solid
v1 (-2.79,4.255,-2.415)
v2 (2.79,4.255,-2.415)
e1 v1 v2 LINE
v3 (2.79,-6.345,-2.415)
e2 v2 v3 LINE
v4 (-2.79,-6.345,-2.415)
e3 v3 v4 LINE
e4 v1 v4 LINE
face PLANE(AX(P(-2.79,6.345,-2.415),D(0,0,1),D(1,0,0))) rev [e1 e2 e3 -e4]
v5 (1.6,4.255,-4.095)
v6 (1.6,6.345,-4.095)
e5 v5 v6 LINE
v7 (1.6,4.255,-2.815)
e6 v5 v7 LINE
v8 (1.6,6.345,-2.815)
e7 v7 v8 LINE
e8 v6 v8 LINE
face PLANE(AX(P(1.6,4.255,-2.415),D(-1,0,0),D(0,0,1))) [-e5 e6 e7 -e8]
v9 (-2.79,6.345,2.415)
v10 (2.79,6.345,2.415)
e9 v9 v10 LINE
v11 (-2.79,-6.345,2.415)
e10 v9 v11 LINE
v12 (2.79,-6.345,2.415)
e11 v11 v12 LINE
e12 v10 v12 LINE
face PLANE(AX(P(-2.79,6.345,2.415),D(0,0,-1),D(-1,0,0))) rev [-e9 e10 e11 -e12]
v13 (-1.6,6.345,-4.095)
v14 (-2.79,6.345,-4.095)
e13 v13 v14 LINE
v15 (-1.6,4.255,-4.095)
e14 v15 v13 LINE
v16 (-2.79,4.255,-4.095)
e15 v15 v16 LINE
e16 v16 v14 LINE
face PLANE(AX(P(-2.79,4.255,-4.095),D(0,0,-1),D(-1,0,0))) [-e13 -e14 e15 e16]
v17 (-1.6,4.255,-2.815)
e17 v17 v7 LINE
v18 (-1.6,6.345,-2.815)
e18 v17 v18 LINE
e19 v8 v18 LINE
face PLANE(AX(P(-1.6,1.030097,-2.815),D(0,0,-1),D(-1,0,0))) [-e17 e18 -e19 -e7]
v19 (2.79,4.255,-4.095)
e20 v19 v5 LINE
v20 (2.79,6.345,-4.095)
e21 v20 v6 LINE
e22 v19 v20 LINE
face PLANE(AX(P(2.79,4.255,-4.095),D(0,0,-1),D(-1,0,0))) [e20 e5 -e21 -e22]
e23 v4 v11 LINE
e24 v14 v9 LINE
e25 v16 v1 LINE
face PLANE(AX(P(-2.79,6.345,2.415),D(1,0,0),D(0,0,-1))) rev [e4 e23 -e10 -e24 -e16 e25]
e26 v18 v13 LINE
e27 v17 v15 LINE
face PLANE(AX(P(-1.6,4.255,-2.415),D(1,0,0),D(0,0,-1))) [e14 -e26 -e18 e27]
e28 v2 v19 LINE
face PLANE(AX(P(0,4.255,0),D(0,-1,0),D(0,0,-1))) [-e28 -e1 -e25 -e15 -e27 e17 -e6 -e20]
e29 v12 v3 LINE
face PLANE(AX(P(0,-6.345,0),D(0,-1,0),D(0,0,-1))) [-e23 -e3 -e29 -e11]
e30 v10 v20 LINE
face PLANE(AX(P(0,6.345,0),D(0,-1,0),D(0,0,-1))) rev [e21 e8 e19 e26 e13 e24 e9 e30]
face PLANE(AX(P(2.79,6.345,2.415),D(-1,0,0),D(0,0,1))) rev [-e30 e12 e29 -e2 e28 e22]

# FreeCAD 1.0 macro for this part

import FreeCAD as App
import Part
import Sketcher

V = App.Vector

doc = App.newDocument("Part")
body = doc.addObject("PartDesign::Body", "Body")

# Sketch on XZ plane
sketch1 = doc.addObject("Sketcher::SketchObject", "Sketch")
body.addObject(sketch1)
sketch1.AttachmentSupport = (doc.XZ_Plane, [""])
sketch1.MapMode = "FlatFace"
sketch1.addGeometry(Part.LineSegment(V(-2.8, -2.4, 0), V(-2.8, 2.4, 0)), False)
sketch1.addGeometry(Part.LineSegment(V(-2.8, 2.4, 0), V(2.8, 2.4, 0)), False)
sketch1.addGeometry(Part.LineSegment(V(2.8, 2.4, 0), V(2.8, -2.4, 0)), False)
sketch1.addGeometry(Part.LineSegment(V(2.8, -2.4, 0), V(-2.8, -2.4, 0)), False)
sketch1.addConstraint(Sketcher.Constraint("Coincident", 0, 2, 1, 1))
sketch1.addConstraint(Sketcher.Constraint("Coincident", 1, 2, 2, 1))
sketch1.addConstraint(Sketcher.Constraint("Coincident", 2, 2, 3, 1))
sketch1.addConstraint(Sketcher.Constraint("Coincident", 3, 2, 0, 1))
sketch1.addConstraint(Sketcher.Constraint("Vertical", 0))
sketch1.addConstraint(Sketcher.Constraint("Horizontal", 1))
sketch1.addConstraint(Sketcher.Constraint("Vertical", 2))
sketch1.addConstraint(Sketcher.Constraint("Horizontal", 3))
sketch1.addConstraint(Sketcher.Constraint("Symmetric", 0, 2, 2, 2, -1, 1))
sketch1.addConstraint(Sketcher.Constraint("DistanceX", 1, 1, 1, 2, 5.58))
sketch1.addConstraint(Sketcher.Constraint("DistanceY", 0, 1, 0, 2, 4.83))
pad1 = doc.addObject("PartDesign::Pad", "Pad")
body.addObject(pad1)
pad1.Profile = sketch1
pad1.Length = 12.69
pad1.Midplane = True

# Sketch on XZ plane
sketch2 = doc.addObject("Sketcher::SketchObject", "Sketch001")
body.addObject(sketch2)
sketch2.AttachmentSupport = (doc.XZ_Plane, [""])
sketch2.MapMode = "FlatFace"
sketch2.AttachmentOffset = App.Placement(V(0, 0, -6.345), App.Rotation())
sketch2.addGeometry(Part.LineSegment(V(-2.8, -4.1, 0), V(-2.8, -2.4, 0)), False)
sketch2.addGeometry(Part.LineSegment(V(-2.8, -2.4, 0), V(-1.6, -2.4, 0)), False)
sketch2.addGeometry(Part.LineSegment(V(-1.6, -2.4, 0), V(-1.6, -4.1, 0)), False)
sketch2.addGeometry(Part.LineSegment(V(-1.6, -4.1, 0), V(-2.8, -4.1, 0)), False)
sketch2.addGeometry(Part.LineSegment(V(1.6, -4.1, 0), V(1.6, -2.4, 0)), False)
sketch2.addGeometry(Part.LineSegment(V(1.6, -2.4, 0), V(2.8, -2.4, 0)), False)
sketch2.addGeometry(Part.LineSegment(V(2.8, -2.4, 0), V(2.8, -4.1, 0)), False)
sketch2.addGeometry(Part.LineSegment(V(2.8, -4.1, 0), V(1.6, -4.1, 0)), False)
sketch2.addConstraint(Sketcher.Constraint("Coincident", 0, 2, 1, 1))
sketch2.addConstraint(Sketcher.Constraint("Coincident", 1, 2, 2, 1))
sketch2.addConstraint(Sketcher.Constraint("Coincident", 2, 2, 3, 1))
sketch2.addConstraint(Sketcher.Constraint("Coincident", 3, 2, 0, 1))
sketch2.addConstraint(Sketcher.Constraint("Coincident", 4, 2, 5, 1))
sketch2.addConstraint(Sketcher.Constraint("Coincident", 5, 2, 6, 1))
sketch2.addConstraint(Sketcher.Constraint("Coincident", 6, 2, 7, 1))
sketch2.addConstraint(Sketcher.Constraint("Coincident", 7, 2, 4, 1))
sketch2.addConstraint(Sketcher.Constraint("Vertical", 0))
sketch2.addConstraint(Sketcher.Constraint("Horizontal", 1))
sketch2.addConstraint(Sketcher.Constraint("Vertical", 2))
sketch2.addConstraint(Sketcher.Constraint("Horizontal", 3))
sketch2.addConstraint(Sketcher.Constraint("Vertical", 4))
sketch2.addConstraint(Sketcher.Constraint("Horizontal", 5))
sketch2.addConstraint(Sketcher.Constraint("Vertical", 6))
sketch2.addConstraint(Sketcher.Constraint("Horizontal", 7))
sketch2.addConstraint(Sketcher.Constraint("Symmetric", 1, 2, 4, 2, -2))
sketch2.addConstraint(Sketcher.Constraint("Symmetric", 3, 2, 6, 2, -2))
sketch2.addConstraint(Sketcher.Constraint("DistanceX", 1, 1, 1, 2, 1.19))
sketch2.addConstraint(Sketcher.Constraint("DistanceY", 0, 1, 0, 2, 1.68))
sketch2.addConstraint(Sketcher.Constraint("DistanceX", 1, 2, -1, 1, 1.6))
sketch2.addConstraint(Sketcher.Constraint("DistanceY", 0, 2, -1, 1, 2.415))
pad2 = doc.addObject("PartDesign::Pad", "Pad001")
body.addObject(pad2)
pad2.Profile = sketch2
pad2.Length = 2.09

# Sketch on XZ plane
sketch3 = doc.addObject("Sketcher::SketchObject", "Sketch002")
body.addObject(sketch3)
sketch3.AttachmentSupport = (doc.XZ_Plane, [""])
sketch3.MapMode = "FlatFace"
sketch3.AttachmentOffset = App.Placement(V(0, 0, -6.345), App.Rotation())
sketch3.addGeometry(Part.LineSegment(V(-1.6, -2.81, 0), V(-1.6, -2.42, 0)), False)
sketch3.addGeometry(Part.LineSegment(V(-1.6, -2.42, 0), V(1.6, -2.42, 0)), False)
sketch3.addGeometry(Part.LineSegment(V(1.6, -2.42, 0), V(1.6, -2.81, 0)), False)
sketch3.addGeometry(Part.LineSegment(V(1.6, -2.81, 0), V(-1.6, -2.81, 0)), False)
sketch3.addConstraint(Sketcher.Constraint("Coincident", 0, 2, 1, 1))
sketch3.addConstraint(Sketcher.Constraint("Coincident", 1, 2, 2, 1))
sketch3.addConstraint(Sketcher.Constraint("Coincident", 2, 2, 3, 1))
sketch3.addConstraint(Sketcher.Constraint("Coincident", 3, 2, 0, 1))
sketch3.addConstraint(Sketcher.Constraint("Vertical", 0))
sketch3.addConstraint(Sketcher.Constraint("Horizontal", 1))
sketch3.addConstraint(Sketcher.Constraint("Vertical", 2))
sketch3.addConstraint(Sketcher.Constraint("Horizontal", 3))
sketch3.addConstraint(Sketcher.Constraint("DistanceX", 1, 1, 1, 2, 3.2))
sketch3.addConstraint(Sketcher.Constraint("DistanceY", 0, 1, 0, 2, 0.4))
sketch3.addConstraint(Sketcher.Constraint("DistanceX", 0, 2, -1, 1, 1.6))
sketch3.addConstraint(Sketcher.Constraint("DistanceY", 0, 2, -1, 1, 2.415))
pad3 = doc.addObject("PartDesign::Pad", "Pad002")
body.addObject(pad3)
pad3.Profile = sketch3
pad3.Length = 2.09

doc.recompute()
